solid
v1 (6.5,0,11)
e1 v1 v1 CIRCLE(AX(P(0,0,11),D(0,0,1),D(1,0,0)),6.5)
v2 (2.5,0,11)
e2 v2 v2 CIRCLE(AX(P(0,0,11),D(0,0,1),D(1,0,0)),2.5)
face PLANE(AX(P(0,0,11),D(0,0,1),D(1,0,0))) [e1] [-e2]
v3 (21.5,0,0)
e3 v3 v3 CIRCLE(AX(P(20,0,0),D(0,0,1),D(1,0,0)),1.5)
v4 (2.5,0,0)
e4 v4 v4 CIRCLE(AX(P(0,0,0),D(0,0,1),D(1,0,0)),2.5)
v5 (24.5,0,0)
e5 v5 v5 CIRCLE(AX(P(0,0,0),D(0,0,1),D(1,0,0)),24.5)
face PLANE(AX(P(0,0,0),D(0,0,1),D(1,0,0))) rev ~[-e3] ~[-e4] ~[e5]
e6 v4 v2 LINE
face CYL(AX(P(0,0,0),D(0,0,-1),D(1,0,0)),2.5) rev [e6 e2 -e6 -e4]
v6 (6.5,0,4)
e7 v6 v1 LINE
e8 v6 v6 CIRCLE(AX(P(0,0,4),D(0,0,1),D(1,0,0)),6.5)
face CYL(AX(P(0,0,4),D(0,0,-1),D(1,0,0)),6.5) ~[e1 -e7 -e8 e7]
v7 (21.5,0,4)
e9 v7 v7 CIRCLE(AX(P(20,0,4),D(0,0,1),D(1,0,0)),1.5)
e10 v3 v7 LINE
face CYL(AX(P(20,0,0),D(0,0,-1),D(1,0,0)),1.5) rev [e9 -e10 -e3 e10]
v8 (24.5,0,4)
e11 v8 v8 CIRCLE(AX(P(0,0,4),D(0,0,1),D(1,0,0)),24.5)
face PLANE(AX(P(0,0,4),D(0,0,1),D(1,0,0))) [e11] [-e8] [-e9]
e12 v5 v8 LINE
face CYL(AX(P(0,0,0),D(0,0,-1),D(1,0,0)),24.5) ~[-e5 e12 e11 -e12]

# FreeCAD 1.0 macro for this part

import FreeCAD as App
import Part
import Sketcher

V = App.Vector
Q = App.Units.Quantity

doc = App.newDocument("Part")
body = doc.addObject("PartDesign::Body", "Body")

# Sketch on XY plane
sketch1 = doc.addObject("Sketcher::SketchObject", "Sketch")
body.addObject(sketch1)
sketch1.AttachmentSupport = (doc.XY_Plane, [""])
sketch1.MapMode = "FlatFace"
sketch1.addGeometry([
    Part.Circle(V(0, 0, 0), V(0, 0, 1), 24.5),
    Part.Circle(V(0, 0, 0), V(0, 0, 1), 2.5),
    Part.Circle(V(20, 0, 0), V(0, 0, 1), 1.5),
], False)
sketch1.addConstraint([
    Sketcher.Constraint("Coincident", 0, 3, -1, 1),
    Sketcher.Constraint("Coincident", 1, 3, -1, 1),
    Sketcher.Constraint("PointOnObject", 2, 3, -1),
    Sketcher.Constraint("Diameter", 0, Q("49 mm")),
    Sketcher.Constraint("Diameter", 1, Q("5 mm")),
    Sketcher.Constraint("Diameter", 2, Q("3 mm")),
    Sketcher.Constraint("DistanceX", -1, 1, 2, 3, Q("20 mm")),
])
pad1 = doc.addObject("PartDesign::Pad", "Pad")
body.addObject(pad1)
pad1.Profile = sketch1
pad1.Length = 4

# Sketch on XY plane
sketch2 = doc.addObject("Sketcher::SketchObject", "Sketch001")
body.addObject(sketch2)
sketch2.AttachmentSupport = (doc.XY_Plane, [""])
sketch2.MapMode = "FlatFace"
sketch2.AttachmentOffset = App.Placement(V(0, 0, 4), App.Rotation())
sketch2.addGeometry([
    Part.Circle(V(0, 0, 0), V(0, 0, 1), 6.5),
    Part.Circle(V(0, 0, 0), V(0, 0, 1), 2.5),
], False)
sketch2.addConstraint([
    Sketcher.Constraint("Coincident", 0, 3, -1, 1),
    Sketcher.Constraint("Coincident", 1, 3, -1, 1),
    Sketcher.Constraint("Diameter", 0, Q("13 mm")),
    Sketcher.Constraint("Diameter", 1, Q("5 mm")),
])
pad2 = doc.addObject("PartDesign::Pad", "Pad001")
body.addObject(pad2)
pad2.Profile = sketch2
pad2.Length = 7

doc.recompute()
